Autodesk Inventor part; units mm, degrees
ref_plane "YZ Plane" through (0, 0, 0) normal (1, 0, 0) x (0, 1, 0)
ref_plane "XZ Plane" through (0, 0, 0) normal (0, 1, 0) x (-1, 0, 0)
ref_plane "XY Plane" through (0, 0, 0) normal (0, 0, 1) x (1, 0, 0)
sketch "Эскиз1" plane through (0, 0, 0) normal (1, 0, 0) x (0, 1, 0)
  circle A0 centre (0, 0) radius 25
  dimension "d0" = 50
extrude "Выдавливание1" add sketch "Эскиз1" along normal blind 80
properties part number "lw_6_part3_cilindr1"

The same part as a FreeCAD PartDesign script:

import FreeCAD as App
import Part
import Sketcher

doc = App.newDocument("Part")
body = doc.addObject("PartDesign::Body", "Body")

sketch1 = doc.addObject("Sketcher::SketchObject", "Sketch")
body.addObject(sketch1)
sketch1.AttachmentSupport = (doc.YZ_Plane, [""])
sketch1.MapMode = "FlatFace"
sketch1.addGeometry(Part.Circle(App.Vector(0, 0, 0), App.Vector(0, 0, 1), 25), False)
sketch1.addConstraint([
    Sketcher.Constraint("Coincident", 0, 3, -1, 1),
    Sketcher.Constraint("Diameter", 0, 50.0),
])
pad1 = doc.addObject("PartDesign::Pad", "Pad")
body.addObject(pad1)
pad1.Profile = sketch1
pad1.Length = 80

doc.recompute()
